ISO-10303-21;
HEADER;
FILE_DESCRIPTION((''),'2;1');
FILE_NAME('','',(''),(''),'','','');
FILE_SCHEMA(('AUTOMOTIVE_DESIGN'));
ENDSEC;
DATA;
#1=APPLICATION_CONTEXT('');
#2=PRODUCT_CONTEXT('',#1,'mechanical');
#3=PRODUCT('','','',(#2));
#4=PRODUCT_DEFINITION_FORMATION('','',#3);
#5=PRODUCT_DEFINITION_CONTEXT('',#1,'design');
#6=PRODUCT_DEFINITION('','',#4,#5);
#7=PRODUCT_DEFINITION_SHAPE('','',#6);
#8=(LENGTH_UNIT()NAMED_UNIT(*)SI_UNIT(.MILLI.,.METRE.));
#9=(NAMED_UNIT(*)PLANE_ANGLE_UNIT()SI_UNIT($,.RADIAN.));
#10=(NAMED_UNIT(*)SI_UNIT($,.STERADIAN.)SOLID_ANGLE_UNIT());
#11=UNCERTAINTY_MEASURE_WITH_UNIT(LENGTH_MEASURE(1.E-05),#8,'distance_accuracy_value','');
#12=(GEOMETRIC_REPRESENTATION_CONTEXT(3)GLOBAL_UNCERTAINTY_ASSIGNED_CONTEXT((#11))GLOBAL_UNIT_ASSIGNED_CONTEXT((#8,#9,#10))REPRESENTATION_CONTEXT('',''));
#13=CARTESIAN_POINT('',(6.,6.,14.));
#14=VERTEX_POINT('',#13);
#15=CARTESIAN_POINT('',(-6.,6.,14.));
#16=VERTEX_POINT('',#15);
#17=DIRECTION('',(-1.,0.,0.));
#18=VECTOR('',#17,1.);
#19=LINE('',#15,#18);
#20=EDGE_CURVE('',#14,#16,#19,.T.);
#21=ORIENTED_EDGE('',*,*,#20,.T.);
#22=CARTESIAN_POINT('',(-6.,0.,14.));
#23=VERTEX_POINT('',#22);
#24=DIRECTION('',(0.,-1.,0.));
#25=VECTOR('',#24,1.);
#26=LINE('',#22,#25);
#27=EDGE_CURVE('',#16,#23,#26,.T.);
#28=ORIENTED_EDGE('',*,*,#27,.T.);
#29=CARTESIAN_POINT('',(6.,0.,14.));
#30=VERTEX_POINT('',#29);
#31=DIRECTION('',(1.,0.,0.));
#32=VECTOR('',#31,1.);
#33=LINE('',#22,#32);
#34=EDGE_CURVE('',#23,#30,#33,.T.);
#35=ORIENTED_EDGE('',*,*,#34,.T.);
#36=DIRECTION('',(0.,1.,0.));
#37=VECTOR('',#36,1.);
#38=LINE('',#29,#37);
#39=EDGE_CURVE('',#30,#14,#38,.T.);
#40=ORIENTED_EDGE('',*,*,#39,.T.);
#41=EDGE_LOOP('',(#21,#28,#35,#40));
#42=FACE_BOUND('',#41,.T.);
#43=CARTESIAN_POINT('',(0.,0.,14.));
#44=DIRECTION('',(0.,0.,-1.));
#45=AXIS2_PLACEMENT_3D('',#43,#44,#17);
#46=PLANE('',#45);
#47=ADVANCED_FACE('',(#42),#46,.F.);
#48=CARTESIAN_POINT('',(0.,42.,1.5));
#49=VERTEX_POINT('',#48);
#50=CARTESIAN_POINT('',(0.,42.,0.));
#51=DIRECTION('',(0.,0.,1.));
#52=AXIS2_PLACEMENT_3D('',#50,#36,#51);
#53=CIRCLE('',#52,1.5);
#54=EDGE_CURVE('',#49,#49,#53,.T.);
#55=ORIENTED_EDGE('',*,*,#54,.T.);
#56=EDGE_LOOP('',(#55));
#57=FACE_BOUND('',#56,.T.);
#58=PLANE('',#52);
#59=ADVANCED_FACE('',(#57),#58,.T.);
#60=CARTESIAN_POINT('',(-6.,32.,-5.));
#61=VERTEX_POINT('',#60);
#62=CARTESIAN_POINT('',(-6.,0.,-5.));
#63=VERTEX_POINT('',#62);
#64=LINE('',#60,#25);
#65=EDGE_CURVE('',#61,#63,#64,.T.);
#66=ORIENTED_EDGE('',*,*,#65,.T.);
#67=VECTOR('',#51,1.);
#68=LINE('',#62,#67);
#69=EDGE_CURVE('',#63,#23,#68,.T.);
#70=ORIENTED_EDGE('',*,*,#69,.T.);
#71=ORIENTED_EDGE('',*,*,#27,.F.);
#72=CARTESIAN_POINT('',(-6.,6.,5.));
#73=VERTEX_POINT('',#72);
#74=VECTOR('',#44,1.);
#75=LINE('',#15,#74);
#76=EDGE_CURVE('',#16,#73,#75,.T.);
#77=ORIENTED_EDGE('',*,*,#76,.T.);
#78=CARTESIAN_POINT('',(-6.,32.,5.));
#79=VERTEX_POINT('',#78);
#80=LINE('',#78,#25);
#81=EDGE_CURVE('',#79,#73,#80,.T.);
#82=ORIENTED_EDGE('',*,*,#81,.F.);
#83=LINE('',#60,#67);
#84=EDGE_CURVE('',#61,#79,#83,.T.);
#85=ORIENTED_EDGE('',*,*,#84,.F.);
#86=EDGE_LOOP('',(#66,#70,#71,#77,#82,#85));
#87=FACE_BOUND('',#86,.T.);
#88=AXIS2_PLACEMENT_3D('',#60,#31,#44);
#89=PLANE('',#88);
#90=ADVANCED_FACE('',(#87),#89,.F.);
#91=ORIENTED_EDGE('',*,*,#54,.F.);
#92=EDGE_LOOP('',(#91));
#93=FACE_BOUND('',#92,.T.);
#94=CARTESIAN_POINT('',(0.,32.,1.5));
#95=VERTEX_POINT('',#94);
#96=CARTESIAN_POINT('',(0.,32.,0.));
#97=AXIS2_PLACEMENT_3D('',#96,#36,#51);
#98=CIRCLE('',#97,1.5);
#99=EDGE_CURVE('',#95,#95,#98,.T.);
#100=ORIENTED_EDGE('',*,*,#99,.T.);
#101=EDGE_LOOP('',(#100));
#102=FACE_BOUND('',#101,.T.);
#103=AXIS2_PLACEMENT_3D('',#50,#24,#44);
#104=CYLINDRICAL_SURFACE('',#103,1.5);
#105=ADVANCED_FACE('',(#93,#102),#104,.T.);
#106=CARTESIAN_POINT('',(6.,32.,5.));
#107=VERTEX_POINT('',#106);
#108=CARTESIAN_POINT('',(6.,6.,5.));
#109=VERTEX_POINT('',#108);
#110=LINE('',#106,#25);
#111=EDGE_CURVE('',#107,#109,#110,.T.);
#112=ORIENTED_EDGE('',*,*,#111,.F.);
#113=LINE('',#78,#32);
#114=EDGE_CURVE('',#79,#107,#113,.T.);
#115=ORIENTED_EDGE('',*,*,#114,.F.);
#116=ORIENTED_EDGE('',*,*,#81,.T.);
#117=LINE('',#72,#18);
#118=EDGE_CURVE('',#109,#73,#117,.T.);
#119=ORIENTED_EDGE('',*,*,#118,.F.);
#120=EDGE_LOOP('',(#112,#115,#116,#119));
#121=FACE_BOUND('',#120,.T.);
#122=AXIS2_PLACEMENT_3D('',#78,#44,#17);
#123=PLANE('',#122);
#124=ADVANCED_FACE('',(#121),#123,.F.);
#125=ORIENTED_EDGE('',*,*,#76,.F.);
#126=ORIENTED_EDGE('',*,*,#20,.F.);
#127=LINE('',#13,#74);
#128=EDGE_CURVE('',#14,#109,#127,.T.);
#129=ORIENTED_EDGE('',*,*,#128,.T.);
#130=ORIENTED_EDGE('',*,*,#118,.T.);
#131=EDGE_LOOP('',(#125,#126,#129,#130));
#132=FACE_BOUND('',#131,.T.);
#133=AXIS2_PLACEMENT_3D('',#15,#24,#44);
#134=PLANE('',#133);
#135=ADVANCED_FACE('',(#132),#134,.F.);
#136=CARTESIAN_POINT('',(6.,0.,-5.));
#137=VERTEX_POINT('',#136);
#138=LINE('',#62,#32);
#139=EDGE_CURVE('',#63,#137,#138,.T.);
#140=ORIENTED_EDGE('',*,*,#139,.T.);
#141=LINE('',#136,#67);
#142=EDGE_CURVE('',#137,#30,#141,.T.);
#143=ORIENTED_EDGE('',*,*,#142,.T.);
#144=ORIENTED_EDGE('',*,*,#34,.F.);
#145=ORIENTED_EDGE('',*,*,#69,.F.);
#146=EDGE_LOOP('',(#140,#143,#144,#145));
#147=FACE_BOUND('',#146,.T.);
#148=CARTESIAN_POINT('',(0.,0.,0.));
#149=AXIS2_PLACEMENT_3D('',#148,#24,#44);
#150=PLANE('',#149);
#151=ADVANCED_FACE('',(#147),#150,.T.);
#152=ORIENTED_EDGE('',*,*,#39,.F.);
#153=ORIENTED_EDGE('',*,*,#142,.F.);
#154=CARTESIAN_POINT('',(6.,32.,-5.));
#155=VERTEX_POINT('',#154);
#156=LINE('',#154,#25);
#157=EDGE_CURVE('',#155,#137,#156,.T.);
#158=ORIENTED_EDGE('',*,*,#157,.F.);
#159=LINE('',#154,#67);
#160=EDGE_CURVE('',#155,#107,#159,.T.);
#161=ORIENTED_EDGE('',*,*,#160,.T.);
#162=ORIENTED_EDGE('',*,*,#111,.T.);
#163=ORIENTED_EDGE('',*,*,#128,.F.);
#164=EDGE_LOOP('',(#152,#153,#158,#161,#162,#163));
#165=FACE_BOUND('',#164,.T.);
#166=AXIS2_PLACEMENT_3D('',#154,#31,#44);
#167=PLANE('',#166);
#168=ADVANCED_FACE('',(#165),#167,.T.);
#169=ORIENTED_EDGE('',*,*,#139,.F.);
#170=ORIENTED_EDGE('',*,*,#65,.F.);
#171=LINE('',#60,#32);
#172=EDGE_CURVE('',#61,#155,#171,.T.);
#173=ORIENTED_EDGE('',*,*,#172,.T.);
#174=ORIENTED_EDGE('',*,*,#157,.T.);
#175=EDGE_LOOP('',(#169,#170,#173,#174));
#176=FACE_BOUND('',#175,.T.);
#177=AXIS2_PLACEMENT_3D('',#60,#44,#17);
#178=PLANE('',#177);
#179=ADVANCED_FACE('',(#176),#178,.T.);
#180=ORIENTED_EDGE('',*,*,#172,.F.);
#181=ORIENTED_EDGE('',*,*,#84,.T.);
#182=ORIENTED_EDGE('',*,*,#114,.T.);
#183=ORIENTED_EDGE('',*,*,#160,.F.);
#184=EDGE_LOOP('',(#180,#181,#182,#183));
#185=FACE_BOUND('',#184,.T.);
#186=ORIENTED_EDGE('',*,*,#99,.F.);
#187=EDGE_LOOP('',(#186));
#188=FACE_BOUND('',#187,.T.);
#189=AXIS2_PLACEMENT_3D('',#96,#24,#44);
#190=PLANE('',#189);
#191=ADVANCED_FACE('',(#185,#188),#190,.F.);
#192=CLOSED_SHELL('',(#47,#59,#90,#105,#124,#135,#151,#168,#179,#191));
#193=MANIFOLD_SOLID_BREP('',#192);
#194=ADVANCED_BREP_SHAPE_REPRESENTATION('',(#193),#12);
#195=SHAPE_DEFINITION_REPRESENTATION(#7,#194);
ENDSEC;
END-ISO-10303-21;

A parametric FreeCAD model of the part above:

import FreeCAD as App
import Part
import Sketcher
Q = App.Units.Quantity

doc = App.newDocument("Part")
body = doc.addObject("PartDesign::Body", "Body")

sketch1 = body.newObject("Sketcher::SketchObject", "Sketch")
sketch1.AttachmentSupport = (doc.getObject("XZ_Plane"), [""])
sketch1.MapMode = "FlatFace"
sketch1.addGeometry([
    Part.LineSegment(App.Vector(-6, -5, 0), App.Vector(-6, 5, 0)),
    Part.LineSegment(App.Vector(-6, 5, 0), App.Vector(6, 5, 0)),
    Part.LineSegment(App.Vector(6, 5, 0), App.Vector(6, -5, 0)),
    Part.LineSegment(App.Vector(6, -5, 0), App.Vector(-6, -5, 0)),
], False)
sketch1.addConstraint([
    Sketcher.Constraint("Coincident", 0, 2, 1, 1),
    Sketcher.Constraint("Coincident", 1, 2, 2, 1),
    Sketcher.Constraint("Coincident", 2, 2, 3, 1),
    Sketcher.Constraint("Coincident", 3, 2, 0, 1),
    Sketcher.Constraint("Vertical", 0),
    Sketcher.Constraint("Horizontal", 1),
    Sketcher.Constraint("Vertical", 2),
    Sketcher.Constraint("Horizontal", 3),
    Sketcher.Constraint("Symmetric", 0, 2, 2, 2, -1, 1),
    Sketcher.Constraint("DistanceX", 1, 1, 1, 2, Q("12 mm")),
    Sketcher.Constraint("DistanceY", 0, 1, 0, 2, Q("10 mm")),
])
pad1 = body.newObject("PartDesign::Pad", "Pad")
pad1.Profile = sketch1
pad1.Length = 32
pad1.Reversed = True

sketch2 = body.newObject("Sketcher::SketchObject", "Sketch001")
sketch2.AttachmentSupport = (doc.getObject("XZ_Plane"), [""])
sketch2.MapMode = "FlatFace"
sketch2.AttachmentOffset = App.Placement(App.Vector(0, 0, -32), App.Rotation())
sketch2.addGeometry(Part.Circle(App.Vector(0, 0, 0), App.Vector(0, 0, 1), 1.5), False)
sketch2.addConstraint([
    Sketcher.Constraint("Coincident", 0, 3, -1, 1),
    Sketcher.Constraint("Diameter", 0, Q("3 mm")),
])
pad2 = body.newObject("PartDesign::Pad", "Pad001")
pad2.Profile = sketch2
pad2.Length = 10
pad2.Reversed = True

sketch3 = body.newObject("Sketcher::SketchObject", "Sketch002")
sketch3.AttachmentSupport = (doc.getObject("XY_Plane"), [""])
sketch3.MapMode = "FlatFace"
sketch3.AttachmentOffset = App.Placement(App.Vector(0, 0, 5), App.Rotation())
sketch3.addGeometry([
    Part.LineSegment(App.Vector(-6, 6, 0), App.Vector(-6, 0, 0)),
    Part.LineSegment(App.Vector(-6, 0, 0), App.Vector(6, 0, 0)),
    Part.LineSegment(App.Vector(6, 0, 0), App.Vector(6, 6, 0)),
    Part.LineSegment(App.Vector(6, 6, 0), App.Vector(-6, 6, 0)),
], False)
sketch3.addConstraint([
    Sketcher.Constraint("Coincident", 0, 2, 1, 1),
    Sketcher.Constraint("Coincident", 1, 2, 2, 1),
    Sketcher.Constraint("Coincident", 2, 2, 3, 1),
    Sketcher.Constraint("Coincident", 3, 2, 0, 1),
    Sketcher.Constraint("Vertical", 0),
    Sketcher.Constraint("Horizontal", 1),
    Sketcher.Constraint("Vertical", 2),
    Sketcher.Constraint("Horizontal", 3),
    Sketcher.Constraint("Symmetric", 0, 2, 1, 2, -1, 1),
    Sketcher.Constraint("DistanceX", 1, 1, 1, 2, Q("12 mm")),
    Sketcher.Constraint("DistanceY", 0, 2, 0, 1, Q("6 mm")),
])
pad3 = body.newObject("PartDesign::Pad", "Pad002")
pad3.Profile = sketch3
pad3.Length = 9

doc.recompute()
